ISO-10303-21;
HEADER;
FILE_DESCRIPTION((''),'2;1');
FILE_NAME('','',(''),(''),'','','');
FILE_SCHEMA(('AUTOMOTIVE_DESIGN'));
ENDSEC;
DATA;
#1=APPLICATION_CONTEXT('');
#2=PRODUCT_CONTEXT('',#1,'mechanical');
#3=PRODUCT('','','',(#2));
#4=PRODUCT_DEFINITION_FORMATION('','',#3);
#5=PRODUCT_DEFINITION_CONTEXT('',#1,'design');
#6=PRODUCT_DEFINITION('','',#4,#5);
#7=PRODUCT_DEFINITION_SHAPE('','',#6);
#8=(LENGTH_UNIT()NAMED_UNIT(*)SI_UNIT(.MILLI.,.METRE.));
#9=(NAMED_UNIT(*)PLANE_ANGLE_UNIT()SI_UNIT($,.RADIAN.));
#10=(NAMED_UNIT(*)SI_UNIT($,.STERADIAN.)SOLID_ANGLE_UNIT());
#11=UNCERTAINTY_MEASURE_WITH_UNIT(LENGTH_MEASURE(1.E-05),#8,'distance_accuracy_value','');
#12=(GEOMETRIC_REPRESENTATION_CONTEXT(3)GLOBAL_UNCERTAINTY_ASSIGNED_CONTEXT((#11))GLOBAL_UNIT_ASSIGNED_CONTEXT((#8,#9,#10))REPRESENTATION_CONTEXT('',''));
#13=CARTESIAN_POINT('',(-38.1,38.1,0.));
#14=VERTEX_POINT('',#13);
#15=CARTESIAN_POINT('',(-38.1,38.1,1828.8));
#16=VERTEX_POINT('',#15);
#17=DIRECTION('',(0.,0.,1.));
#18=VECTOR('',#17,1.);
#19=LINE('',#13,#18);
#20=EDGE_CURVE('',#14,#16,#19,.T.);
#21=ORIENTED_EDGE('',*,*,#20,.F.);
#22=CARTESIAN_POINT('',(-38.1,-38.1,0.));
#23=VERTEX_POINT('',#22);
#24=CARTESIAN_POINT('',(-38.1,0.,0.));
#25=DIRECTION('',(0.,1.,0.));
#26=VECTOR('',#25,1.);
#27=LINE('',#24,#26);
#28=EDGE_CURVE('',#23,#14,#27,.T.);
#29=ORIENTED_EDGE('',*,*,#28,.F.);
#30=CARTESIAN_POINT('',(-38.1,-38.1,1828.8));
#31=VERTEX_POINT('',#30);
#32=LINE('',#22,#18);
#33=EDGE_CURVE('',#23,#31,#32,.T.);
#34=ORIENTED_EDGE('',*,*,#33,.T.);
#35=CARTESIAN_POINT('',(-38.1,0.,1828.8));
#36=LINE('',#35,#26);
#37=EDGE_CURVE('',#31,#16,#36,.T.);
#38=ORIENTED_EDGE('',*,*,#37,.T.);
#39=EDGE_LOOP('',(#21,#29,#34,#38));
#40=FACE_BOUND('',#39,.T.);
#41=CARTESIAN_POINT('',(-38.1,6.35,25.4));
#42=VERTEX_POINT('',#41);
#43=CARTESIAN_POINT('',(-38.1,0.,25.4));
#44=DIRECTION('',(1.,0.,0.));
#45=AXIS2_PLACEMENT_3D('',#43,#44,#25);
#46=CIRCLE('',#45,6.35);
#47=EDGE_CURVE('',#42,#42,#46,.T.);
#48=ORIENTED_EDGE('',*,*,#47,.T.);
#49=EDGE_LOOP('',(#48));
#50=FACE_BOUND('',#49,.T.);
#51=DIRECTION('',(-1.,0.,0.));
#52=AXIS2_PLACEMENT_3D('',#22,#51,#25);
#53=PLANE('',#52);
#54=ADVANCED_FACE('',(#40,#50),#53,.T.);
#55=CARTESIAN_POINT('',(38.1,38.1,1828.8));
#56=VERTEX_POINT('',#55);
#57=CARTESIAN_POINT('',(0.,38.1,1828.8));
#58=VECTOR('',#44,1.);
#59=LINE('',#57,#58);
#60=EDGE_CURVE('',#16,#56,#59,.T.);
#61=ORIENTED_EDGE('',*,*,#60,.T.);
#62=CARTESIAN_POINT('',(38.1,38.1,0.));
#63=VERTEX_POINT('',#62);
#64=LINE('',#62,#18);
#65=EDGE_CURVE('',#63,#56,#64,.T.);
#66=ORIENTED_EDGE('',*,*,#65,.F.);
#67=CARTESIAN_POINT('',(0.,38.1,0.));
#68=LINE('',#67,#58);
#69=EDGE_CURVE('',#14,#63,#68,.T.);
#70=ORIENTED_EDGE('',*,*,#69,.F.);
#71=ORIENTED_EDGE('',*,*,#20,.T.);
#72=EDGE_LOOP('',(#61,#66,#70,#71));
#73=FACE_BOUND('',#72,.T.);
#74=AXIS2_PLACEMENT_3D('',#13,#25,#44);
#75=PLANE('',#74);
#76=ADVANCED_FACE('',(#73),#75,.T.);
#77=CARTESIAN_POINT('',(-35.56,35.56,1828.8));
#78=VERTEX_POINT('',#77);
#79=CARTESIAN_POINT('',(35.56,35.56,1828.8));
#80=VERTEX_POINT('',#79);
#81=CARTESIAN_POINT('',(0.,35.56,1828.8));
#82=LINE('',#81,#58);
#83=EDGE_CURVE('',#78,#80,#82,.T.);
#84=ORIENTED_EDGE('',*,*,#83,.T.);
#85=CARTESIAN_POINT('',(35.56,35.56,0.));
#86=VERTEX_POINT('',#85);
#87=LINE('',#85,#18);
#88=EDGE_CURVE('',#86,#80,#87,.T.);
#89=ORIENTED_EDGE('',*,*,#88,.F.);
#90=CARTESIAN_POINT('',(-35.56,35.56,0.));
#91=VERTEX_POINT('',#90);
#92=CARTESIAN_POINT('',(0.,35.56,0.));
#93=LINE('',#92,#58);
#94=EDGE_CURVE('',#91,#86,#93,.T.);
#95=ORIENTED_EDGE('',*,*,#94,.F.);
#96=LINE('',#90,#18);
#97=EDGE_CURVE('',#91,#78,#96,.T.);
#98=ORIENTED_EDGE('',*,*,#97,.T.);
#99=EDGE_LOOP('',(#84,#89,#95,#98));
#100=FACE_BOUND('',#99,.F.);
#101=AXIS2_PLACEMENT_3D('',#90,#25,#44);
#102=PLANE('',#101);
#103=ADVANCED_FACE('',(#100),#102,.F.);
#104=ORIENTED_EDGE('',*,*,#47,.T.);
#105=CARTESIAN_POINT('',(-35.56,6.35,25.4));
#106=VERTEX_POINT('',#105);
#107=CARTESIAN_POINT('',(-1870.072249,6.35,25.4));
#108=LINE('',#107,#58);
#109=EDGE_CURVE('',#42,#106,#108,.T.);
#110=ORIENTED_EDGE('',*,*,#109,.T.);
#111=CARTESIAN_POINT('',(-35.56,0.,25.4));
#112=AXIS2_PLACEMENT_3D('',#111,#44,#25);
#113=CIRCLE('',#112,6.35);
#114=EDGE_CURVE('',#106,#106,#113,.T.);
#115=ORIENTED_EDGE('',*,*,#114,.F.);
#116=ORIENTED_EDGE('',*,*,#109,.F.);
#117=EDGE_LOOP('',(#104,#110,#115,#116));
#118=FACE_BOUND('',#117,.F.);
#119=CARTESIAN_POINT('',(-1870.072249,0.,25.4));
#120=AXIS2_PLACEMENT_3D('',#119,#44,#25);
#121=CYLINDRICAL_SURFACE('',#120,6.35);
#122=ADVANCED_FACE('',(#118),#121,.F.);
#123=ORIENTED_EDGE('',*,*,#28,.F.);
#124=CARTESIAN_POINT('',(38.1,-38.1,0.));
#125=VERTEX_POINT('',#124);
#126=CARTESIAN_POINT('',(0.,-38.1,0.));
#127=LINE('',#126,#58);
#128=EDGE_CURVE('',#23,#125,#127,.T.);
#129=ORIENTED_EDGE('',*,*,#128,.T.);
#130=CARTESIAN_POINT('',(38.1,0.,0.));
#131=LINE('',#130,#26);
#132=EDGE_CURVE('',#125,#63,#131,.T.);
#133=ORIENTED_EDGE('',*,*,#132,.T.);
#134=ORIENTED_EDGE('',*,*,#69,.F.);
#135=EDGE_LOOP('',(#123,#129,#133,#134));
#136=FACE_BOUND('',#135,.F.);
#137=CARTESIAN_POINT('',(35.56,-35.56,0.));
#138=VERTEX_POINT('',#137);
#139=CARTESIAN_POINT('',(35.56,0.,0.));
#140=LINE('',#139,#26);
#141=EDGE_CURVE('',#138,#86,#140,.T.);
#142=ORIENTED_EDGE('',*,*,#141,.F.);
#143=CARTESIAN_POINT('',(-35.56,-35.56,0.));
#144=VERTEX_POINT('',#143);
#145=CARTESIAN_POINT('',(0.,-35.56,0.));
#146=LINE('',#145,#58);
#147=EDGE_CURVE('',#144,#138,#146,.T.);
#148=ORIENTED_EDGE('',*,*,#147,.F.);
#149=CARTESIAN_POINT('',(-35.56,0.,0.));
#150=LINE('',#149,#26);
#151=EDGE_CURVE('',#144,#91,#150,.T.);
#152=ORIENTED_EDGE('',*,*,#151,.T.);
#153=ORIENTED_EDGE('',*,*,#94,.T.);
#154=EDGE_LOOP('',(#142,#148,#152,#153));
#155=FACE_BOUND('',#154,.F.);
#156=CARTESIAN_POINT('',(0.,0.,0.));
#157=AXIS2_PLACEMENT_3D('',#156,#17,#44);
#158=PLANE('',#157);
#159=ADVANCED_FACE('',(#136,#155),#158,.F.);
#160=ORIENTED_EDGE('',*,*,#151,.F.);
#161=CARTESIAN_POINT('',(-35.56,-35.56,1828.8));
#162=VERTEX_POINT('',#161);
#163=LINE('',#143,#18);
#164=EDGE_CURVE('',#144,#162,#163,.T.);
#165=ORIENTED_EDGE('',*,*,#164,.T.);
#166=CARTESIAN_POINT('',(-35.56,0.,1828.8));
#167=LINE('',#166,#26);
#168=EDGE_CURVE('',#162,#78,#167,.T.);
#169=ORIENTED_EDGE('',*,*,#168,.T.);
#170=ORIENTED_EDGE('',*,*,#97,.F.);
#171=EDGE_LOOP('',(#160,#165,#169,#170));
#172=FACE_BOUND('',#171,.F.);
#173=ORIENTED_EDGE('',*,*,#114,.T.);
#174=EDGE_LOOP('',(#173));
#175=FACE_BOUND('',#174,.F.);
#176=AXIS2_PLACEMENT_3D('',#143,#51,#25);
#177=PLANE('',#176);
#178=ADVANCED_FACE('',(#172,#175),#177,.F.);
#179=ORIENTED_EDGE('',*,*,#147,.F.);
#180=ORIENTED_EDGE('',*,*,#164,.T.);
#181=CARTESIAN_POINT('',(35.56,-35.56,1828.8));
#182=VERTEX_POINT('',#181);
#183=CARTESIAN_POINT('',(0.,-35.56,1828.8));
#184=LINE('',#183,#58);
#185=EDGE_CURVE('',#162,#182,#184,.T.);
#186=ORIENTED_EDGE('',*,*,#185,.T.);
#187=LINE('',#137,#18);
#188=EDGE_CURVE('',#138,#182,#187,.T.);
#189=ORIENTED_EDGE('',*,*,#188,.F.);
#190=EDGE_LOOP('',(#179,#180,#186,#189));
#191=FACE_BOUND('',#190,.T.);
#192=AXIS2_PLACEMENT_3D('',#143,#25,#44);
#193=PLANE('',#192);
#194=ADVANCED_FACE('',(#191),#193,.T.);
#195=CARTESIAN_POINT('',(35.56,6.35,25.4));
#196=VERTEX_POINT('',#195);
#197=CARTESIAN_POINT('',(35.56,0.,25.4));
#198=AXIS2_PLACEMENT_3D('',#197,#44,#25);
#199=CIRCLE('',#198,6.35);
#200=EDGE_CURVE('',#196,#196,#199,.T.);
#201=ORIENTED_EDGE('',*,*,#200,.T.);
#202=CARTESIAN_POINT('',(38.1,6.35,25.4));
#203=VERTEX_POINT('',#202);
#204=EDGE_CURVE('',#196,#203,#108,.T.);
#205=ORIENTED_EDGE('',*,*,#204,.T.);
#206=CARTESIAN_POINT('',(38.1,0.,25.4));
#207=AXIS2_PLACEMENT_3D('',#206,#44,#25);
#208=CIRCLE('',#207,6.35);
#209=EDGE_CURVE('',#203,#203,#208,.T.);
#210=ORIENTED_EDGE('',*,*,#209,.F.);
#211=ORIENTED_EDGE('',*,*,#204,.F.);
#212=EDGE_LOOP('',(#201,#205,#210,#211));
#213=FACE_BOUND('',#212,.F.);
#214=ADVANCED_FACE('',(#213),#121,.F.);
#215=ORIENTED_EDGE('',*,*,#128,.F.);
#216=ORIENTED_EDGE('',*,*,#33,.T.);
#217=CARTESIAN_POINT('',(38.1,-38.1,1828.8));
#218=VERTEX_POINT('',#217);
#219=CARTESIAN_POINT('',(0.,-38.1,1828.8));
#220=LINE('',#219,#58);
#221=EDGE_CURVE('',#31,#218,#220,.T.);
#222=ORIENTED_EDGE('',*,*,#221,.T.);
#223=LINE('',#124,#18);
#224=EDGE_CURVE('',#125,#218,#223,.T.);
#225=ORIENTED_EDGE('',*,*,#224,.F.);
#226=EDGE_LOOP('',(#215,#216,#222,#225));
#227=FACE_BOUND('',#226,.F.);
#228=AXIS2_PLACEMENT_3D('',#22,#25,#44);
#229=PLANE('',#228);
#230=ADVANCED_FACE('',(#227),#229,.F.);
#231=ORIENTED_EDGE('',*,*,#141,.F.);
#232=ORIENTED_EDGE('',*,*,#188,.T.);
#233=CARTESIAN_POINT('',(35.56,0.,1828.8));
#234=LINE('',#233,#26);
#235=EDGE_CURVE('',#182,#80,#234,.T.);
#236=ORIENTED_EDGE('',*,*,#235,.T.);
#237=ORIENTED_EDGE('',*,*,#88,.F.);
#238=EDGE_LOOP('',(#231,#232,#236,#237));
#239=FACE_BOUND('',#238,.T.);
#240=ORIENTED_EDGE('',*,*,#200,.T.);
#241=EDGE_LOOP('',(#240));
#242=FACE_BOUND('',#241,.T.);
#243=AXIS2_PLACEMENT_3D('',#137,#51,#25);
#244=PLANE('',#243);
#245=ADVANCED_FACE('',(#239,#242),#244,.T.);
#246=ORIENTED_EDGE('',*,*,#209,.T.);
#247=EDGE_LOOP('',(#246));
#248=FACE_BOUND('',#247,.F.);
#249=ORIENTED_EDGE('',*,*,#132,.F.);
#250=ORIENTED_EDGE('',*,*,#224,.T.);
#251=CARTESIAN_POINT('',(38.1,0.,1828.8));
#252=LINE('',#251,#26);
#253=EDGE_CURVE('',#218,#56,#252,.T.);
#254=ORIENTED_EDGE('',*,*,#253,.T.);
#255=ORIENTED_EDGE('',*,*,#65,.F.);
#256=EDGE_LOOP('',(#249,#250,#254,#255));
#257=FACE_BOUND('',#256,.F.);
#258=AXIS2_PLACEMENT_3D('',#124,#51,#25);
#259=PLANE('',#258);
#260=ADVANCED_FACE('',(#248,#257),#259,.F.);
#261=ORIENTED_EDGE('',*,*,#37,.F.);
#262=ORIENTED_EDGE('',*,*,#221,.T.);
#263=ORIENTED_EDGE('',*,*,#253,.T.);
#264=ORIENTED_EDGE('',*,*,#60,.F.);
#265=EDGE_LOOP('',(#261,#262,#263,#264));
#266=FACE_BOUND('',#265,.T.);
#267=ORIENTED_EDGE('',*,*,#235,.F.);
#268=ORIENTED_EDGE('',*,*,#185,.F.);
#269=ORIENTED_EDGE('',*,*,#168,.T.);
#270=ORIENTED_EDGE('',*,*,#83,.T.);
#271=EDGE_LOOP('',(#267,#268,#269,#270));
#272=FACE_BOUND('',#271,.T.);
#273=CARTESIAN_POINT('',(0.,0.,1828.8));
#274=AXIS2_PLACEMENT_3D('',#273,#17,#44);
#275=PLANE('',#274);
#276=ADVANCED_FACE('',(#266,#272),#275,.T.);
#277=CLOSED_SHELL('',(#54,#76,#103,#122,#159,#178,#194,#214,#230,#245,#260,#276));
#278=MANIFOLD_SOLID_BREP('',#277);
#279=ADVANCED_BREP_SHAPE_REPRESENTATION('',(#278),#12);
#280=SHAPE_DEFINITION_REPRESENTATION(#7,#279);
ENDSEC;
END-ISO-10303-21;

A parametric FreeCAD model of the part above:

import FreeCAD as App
import Part
import Sketcher
Q = App.Units.Quantity


def add_polygon(sketch, points):
    """Adds a closed chain of lines whose ends are joined by coincident constraints."""
    first, n = sketch.GeometryCount, len(points)
    for a, b in zip(points, points[1:] + points[:1]):
        sketch.addGeometry(Part.LineSegment(App.Vector(*a, 0), App.Vector(*b, 0)), False)
    for i in range(n):
        sketch.addConstraint(Sketcher.Constraint("Coincident", first + i, 2, first + (i + 1) % n, 1))

doc = App.newDocument("Part")
params = doc.addObject("Spreadsheet::Sheet", "Params")
for row, (alias, value) in enumerate([
    ("sketch1_width", "3 in"),
    ("sketch1_width2", "2.8 in"),
    ("pad1_length", "72 in"),
    ("sketch2_diameter", "0.5 in"),
    ("hole_diameter", "0.5 in"),
], start=1):
    params.set(f"A{row}", alias)
    params.set(f"B{row}", "=" + value)
    params.setAlias(f"B{row}", alias)

body = doc.addObject("PartDesign::Body", "Body")

# Sketch on XY plane
sketch1 = body.newObject("Sketcher::SketchObject", "Sketch")
sketch1.AttachmentSupport = (doc.getObject("XY_Plane"), [""])
sketch1.MapMode = "FlatFace"
add_polygon(sketch1, [(-38, 38), (-38, -38), (38, -38), (38, 38)])  # lines 0-3
add_polygon(sketch1, [(36, -36), (-36, -36), (-36, 36), (36, 36)])  # lines 4-7
sketch1.addConstraint([
    Sketcher.Constraint("Vertical", 0),
    Sketcher.Constraint("Horizontal", 1),
    Sketcher.Constraint("Vertical", 2),
    Sketcher.Constraint("Horizontal", 3),
    Sketcher.Constraint("Horizontal", 4),
    Sketcher.Constraint("Vertical", 5),
    Sketcher.Constraint("Horizontal", 6),
    Sketcher.Constraint("Vertical", 7),
    Sketcher.Constraint("Symmetric", 0, 2, 2, 2, -1, 1),
    Sketcher.Constraint("Symmetric", 4, 2, 6, 2, -1, 1),
    Sketcher.Constraint("Equal", 3, 0),
    Sketcher.Constraint("Equal", 6, 5),
    Sketcher.Constraint("DistanceX", 1, 1, 1, 2, Q("3 in")),
    Sketcher.Constraint("DistanceX", 4, 2, 4, 1, Q("2.8 in")),
])
sketch1.setExpression("Constraints[20]", "Params.sketch1_width")
sketch1.setExpression("Constraints[21]", "Params.sketch1_width2")
pad1 = body.newObject("PartDesign::Pad", "Pad")
pad1.Profile = sketch1
pad1.setExpression("Length", "Params.pad1_length")

# Sketch on YZ plane
sketch2 = body.newObject("Sketcher::SketchObject", "Sketch001")
sketch2.AttachmentSupport = (doc.getObject("YZ_Plane"), [""])
sketch2.MapMode = "FlatFace"
sketch2.AttachmentOffset = App.Placement(App.Vector(0, 0, -1.5 * 25.4), App.Rotation())
sketch2.addGeometry(Part.Circle(App.Vector(0, 25, 0), App.Vector(0, 0, 1), 6), False)
sketch2.addConstraint([
    Sketcher.Constraint("PointOnObject", 0, 3, -2),
    Sketcher.Constraint("Diameter", 0, Q("0.5 in")),
    Sketcher.Constraint("DistanceY", -1, 1, 0, 3, Q("1 in")),
])
sketch2.setExpression("Constraints[1]", "Params.sketch2_diameter")
doc.recompute()
hole = body.newObject("PartDesign::Hole", "Hole")
hole.Profile = sketch2
hole.ThreadType = "None"
hole.setExpression("Diameter", "Params.hole_diameter")
hole.DepthType = "ThroughAll"
hole.Reversed = True

doc.recompute()
